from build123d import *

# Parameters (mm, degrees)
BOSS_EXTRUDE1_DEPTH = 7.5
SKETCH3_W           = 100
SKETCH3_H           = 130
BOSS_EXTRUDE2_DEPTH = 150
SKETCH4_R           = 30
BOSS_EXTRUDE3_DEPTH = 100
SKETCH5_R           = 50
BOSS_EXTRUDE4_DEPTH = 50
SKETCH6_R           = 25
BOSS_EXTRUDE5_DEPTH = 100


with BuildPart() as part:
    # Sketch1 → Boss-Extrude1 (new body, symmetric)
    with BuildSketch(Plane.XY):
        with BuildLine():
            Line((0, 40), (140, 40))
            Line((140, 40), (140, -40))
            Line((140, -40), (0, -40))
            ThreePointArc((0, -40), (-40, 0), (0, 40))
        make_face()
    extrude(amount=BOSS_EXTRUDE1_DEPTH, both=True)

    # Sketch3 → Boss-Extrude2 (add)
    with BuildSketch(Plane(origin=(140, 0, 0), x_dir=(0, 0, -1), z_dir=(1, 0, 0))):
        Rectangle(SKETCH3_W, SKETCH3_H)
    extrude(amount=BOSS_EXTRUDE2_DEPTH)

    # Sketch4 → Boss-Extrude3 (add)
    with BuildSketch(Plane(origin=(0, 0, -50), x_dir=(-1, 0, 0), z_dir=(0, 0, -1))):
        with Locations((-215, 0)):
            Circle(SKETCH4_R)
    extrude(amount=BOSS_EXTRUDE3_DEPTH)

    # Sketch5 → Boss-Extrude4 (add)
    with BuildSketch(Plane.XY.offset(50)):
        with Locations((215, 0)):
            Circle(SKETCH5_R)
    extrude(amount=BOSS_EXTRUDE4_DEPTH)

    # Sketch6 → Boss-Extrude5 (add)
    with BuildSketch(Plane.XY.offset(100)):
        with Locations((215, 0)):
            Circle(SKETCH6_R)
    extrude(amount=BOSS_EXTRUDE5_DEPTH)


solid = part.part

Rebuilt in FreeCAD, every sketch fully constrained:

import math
import FreeCAD as App
import Part
import Sketcher

V = App.Vector
Q = App.Units.Quantity


def add_polygon(sketch, points):
    """Adds a closed chain of lines whose ends are joined by coincident constraints."""
    first, n = sketch.GeometryCount, len(points)
    for a, b in zip(points, points[1:] + points[:1]):
        sketch.addGeometry(Part.LineSegment(App.Vector(*a, 0), App.Vector(*b, 0)), False)
    for i in range(n):
        sketch.addConstraint(Sketcher.Constraint("Coincident", first + i, 2, first + (i + 1) % n, 1))

doc = App.newDocument("Part")
body = doc.addObject("PartDesign::Body", "Body")

sketch1 = body.newObject("Sketcher::SketchObject", "Sketch")
sketch1.AttachmentSupport = (doc.getObject("XY_Plane"), [""])
sketch1.MapMode = "FlatFace"
sketch1.addGeometry(Part.LineSegment(V(140, 40, 0), V(0, 40, 0)), False)
sketch1.addGeometry(Part.ArcOfCircle(Part.Circle(V(0, 0, 0), V(0, 0, 1), 40), math.radians(90), math.radians(270)), False)
sketch1.addGeometry(Part.LineSegment(V(0, -40, 0), V(140, -40, 0)), False)
sketch1.addGeometry(Part.LineSegment(V(140, -40, 0), V(140, 40, 0)), False)
sketch1.addConstraint(Sketcher.Constraint("Tangent", 0, 2, 1, 1))
sketch1.addConstraint(Sketcher.Constraint("Tangent", 1, 2, 2, 1))
sketch1.addConstraint(Sketcher.Constraint("Coincident", 2, 2, 3, 1))
sketch1.addConstraint(Sketcher.Constraint("Coincident", 3, 2, 0, 1))
sketch1.addConstraint(Sketcher.Constraint("Horizontal", 0))
sketch1.addConstraint(Sketcher.Constraint("Horizontal", 2))
sketch1.addConstraint(Sketcher.Constraint("Vertical", 3))
sketch1.addConstraint(Sketcher.Constraint("Coincident", 1, 3, -1, 1))
sketch1.addConstraint(Sketcher.Constraint("Radius", 1, Q("40 mm")))
sketch1.addConstraint(Sketcher.Constraint("DistanceX", 0, 2, 0, 1, Q("140 mm")))
pad1 = body.newObject("PartDesign::Pad", "Pad")
pad1.Profile = sketch1
pad1.Length = 15
pad1.Midplane = True

sketch2 = body.newObject("Sketcher::SketchObject", "Sketch001")
sketch2.AttachmentSupport = (doc.getObject("YZ_Plane"), [""])
sketch2.MapMode = "FlatFace"
sketch2.AttachmentOffset = App.Placement(V(0, 0, 140), App.Rotation())
add_polygon(sketch2, [(65, 50), (-65, 50), (-65, -50), (65, -50)])
sketch2.addConstraint(Sketcher.Constraint("Horizontal", 0))
sketch2.addConstraint(Sketcher.Constraint("Vertical", 1))
sketch2.addConstraint(Sketcher.Constraint("Horizontal", 2))
sketch2.addConstraint(Sketcher.Constraint("Vertical", 3))
sketch2.addConstraint(Sketcher.Constraint("Symmetric", 0, 2, 2, 2, -1, 1))
sketch2.addConstraint(Sketcher.Constraint("DistanceX", 0, 2, 0, 1, Q("130 mm")))
sketch2.addConstraint(Sketcher.Constraint("DistanceY", 1, 2, 1, 1, Q("100 mm")))
pad2 = body.newObject("PartDesign::Pad", "Pad001")
pad2.Profile = sketch2
pad2.Length = 150

sketch3 = body.newObject("Sketcher::SketchObject", "Sketch002")
sketch3.AttachmentSupport = (doc.getObject("XY_Plane"), [""])
sketch3.MapMode = "FlatFace"
sketch3.AttachmentOffset = App.Placement(V(0, 0, -50), App.Rotation())
sketch3.addGeometry(Part.Circle(V(215, 0, 0), V(0, 0, 1), 30), False)
sketch3.addConstraint(Sketcher.Constraint("PointOnObject", 0, 3, -1))
sketch3.addConstraint(Sketcher.Constraint("Diameter", 0, Q("60 mm")))
sketch3.addConstraint(Sketcher.Constraint("DistanceX", -1, 1, 0, 3, Q("215 mm")))
pad3 = body.newObject("PartDesign::Pad", "Pad002")
pad3.Profile = sketch3
pad3.Length = 100
pad3.Reversed = True

sketch4 = body.newObject("Sketcher::SketchObject", "Sketch003")
sketch4.AttachmentSupport = (doc.getObject("XY_Plane"), [""])
sketch4.MapMode = "FlatFace"
sketch4.AttachmentOffset = App.Placement(V(0, 0, 50), App.Rotation())
sketch4.addGeometry(Part.Circle(V(215, 0, 0), V(0, 0, 1), 50), False)
sketch4.addConstraint(Sketcher.Constraint("PointOnObject", 0, 3, -1))
sketch4.addConstraint(Sketcher.Constraint("Diameter", 0, Q("100 mm")))
sketch4.addConstraint(Sketcher.Constraint("DistanceX", -1, 1, 0, 3, Q("215 mm")))
pad4 = body.newObject("PartDesign::Pad", "Pad003")
pad4.Profile = sketch4
pad4.Length = 50

sketch5 = body.newObject("Sketcher::SketchObject", "Sketch004")
sketch5.AttachmentSupport = (doc.getObject("XY_Plane"), [""])
sketch5.MapMode = "FlatFace"
sketch5.AttachmentOffset = App.Placement(V(0, 0, 100), App.Rotation())
sketch5.addGeometry(Part.Circle(V(215, 0, 0), V(0, 0, 1), 25), False)
sketch5.addConstraint(Sketcher.Constraint("PointOnObject", 0, 3, -1))
sketch5.addConstraint(Sketcher.Constraint("Diameter", 0, Q("50 mm")))
sketch5.addConstraint(Sketcher.Constraint("DistanceX", -1, 1, 0, 3, Q("215 mm")))
pad5 = body.newObject("PartDesign::Pad", "Pad004")
pad5.Profile = sketch5
pad5.Length = 100

doc.recompute()
